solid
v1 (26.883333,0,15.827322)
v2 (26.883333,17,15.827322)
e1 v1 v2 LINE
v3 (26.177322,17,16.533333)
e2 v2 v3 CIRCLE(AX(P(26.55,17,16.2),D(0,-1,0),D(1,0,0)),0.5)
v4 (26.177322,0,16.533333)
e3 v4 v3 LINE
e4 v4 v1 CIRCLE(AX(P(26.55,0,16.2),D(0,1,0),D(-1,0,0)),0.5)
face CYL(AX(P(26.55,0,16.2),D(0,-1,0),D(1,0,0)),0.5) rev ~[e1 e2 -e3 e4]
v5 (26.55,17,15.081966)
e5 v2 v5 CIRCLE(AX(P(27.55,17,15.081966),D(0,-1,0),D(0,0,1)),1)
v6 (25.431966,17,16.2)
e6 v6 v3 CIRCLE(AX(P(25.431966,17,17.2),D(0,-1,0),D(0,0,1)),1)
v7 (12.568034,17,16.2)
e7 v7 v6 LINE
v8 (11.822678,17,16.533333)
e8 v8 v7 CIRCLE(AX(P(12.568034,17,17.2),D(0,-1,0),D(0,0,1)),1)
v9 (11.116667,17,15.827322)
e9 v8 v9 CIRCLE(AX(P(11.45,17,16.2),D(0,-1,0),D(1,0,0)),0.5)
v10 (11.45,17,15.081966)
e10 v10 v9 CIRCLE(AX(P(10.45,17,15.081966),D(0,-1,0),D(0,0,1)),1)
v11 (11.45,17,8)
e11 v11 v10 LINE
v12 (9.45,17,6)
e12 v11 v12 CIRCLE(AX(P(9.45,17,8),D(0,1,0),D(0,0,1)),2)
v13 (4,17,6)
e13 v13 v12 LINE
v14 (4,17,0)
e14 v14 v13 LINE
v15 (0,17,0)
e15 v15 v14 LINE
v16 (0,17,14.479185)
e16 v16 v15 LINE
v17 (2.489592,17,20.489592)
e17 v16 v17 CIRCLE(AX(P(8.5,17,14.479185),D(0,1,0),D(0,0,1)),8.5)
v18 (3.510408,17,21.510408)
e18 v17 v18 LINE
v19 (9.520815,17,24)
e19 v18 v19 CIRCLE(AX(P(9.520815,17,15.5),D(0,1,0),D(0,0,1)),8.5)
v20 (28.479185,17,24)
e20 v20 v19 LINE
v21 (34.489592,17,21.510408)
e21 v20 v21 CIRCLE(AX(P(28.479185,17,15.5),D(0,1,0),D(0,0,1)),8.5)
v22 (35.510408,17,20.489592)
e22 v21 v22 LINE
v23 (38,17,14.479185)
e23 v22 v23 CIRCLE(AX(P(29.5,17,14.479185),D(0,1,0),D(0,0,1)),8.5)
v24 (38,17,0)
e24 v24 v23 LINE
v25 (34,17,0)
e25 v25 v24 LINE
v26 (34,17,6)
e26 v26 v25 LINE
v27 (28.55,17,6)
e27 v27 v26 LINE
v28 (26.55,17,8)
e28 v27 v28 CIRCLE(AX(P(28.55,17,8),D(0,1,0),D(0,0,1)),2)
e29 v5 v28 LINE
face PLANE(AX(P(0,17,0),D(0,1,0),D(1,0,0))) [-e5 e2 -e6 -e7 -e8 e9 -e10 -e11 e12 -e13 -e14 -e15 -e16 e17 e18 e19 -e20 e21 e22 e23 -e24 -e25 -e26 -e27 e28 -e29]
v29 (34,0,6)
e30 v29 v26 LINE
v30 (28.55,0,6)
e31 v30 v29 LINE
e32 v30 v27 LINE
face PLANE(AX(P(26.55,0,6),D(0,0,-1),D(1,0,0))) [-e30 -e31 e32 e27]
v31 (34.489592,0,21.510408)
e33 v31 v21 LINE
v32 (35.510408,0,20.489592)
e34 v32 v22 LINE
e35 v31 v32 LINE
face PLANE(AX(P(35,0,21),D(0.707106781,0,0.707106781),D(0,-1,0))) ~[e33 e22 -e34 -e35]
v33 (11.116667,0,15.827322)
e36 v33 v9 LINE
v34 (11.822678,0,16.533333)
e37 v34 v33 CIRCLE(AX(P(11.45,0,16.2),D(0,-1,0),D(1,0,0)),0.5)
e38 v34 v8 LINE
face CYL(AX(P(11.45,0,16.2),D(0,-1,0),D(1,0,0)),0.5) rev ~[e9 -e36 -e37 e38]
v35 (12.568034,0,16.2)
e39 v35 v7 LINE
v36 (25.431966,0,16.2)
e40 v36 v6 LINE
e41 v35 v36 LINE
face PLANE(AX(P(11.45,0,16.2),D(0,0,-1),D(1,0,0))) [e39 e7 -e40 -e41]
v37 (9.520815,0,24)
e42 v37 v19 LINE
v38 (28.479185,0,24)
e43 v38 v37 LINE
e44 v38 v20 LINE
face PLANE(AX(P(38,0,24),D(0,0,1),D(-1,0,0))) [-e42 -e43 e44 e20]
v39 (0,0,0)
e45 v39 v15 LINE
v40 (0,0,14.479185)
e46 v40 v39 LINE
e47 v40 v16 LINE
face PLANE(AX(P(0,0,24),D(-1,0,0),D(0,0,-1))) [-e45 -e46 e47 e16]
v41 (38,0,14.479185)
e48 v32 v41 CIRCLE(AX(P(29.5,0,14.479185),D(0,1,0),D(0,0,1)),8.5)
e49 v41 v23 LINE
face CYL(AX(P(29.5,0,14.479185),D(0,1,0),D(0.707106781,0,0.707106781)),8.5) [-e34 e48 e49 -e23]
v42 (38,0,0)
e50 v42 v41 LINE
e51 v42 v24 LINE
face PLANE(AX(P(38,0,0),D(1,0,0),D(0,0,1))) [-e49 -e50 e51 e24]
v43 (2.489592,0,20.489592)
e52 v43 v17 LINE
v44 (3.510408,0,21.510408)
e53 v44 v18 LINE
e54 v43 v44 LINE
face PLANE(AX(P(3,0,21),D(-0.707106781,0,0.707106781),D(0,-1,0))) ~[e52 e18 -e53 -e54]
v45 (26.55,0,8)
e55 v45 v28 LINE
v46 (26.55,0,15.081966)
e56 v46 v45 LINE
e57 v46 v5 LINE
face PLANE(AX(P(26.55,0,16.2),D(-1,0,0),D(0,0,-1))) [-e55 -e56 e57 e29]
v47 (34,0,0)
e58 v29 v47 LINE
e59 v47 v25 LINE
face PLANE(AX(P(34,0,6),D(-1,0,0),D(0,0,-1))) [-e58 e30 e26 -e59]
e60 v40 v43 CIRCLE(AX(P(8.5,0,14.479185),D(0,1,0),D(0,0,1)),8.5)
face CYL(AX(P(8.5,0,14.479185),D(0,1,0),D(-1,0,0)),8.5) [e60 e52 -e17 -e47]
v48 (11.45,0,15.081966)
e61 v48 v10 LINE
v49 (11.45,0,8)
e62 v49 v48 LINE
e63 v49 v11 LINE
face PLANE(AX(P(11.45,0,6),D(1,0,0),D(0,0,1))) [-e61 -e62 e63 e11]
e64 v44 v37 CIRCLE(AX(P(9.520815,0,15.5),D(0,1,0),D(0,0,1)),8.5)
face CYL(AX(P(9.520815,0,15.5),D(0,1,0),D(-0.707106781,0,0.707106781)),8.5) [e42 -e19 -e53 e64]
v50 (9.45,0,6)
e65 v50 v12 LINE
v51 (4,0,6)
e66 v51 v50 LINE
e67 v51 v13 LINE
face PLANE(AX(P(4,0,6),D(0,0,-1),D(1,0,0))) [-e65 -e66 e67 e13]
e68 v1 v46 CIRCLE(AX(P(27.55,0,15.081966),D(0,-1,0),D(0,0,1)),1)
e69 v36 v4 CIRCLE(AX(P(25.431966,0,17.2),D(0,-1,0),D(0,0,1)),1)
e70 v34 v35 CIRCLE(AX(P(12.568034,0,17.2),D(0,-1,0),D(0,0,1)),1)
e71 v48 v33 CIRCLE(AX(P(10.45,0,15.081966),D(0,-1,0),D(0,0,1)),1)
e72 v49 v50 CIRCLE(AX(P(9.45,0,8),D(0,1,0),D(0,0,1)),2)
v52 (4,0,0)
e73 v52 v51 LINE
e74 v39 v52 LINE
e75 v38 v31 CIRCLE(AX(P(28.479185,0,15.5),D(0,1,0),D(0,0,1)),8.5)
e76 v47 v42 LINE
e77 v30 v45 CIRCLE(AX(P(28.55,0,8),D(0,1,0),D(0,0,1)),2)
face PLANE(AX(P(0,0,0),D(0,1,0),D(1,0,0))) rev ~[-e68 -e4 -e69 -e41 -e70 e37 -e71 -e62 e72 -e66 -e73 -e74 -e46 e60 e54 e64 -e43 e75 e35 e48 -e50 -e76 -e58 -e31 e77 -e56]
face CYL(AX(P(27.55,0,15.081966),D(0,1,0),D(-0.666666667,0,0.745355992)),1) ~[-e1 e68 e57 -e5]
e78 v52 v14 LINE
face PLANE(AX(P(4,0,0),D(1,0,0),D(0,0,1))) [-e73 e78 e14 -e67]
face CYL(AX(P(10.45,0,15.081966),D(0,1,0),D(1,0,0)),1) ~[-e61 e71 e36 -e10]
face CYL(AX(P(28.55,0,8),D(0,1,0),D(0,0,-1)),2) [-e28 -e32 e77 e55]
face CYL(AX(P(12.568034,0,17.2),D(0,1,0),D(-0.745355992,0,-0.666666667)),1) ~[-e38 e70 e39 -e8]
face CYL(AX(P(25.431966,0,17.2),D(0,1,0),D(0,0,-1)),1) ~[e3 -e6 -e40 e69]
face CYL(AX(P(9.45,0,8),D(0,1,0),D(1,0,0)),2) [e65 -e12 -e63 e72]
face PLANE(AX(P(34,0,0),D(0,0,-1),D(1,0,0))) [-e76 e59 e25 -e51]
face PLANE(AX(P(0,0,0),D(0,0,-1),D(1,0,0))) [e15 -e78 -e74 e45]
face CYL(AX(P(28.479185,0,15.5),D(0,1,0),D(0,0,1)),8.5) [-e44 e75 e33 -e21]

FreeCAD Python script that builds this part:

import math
import FreeCAD as App
import Part
import Sketcher

V = App.Vector
Q = App.Units.Quantity


def edges_at(feature, points):
    """Names of the edges that pass closest to the given points."""
    edges = feature.Shape.Edges
    near = lambda p: min(range(len(edges)), key=lambda i: edges[i].distToShape(Part.Vertex(*p))[0])
    return sorted({f"Edge{near(p) + 1}" for p in points})


def add_polygon(sketch, points):
    """Adds a closed chain of lines whose ends are joined by coincident constraints."""
    first, n = sketch.GeometryCount, len(points)
    for a, b in zip(points, points[1:] + points[:1]):
        sketch.addGeometry(Part.LineSegment(App.Vector(*a, 0), App.Vector(*b, 0)), False)
    for i in range(n):
        sketch.addConstraint(Sketcher.Constraint("Coincident", first + i, 2, first + (i + 1) % n, 1))

doc = App.newDocument("Part")
params = doc.addObject("Spreadsheet::Sheet", "Params")
for row, (alias, value) in enumerate([
    ("sketch1_width", "4 mm"),
    ("sketch1_height", "24 mm"),
    ("sketch1_height2", "6 mm"),
    ("sketch1_width2", "15.1 mm"),
    ("sketch1_height3", "10.2 mm"),
    ("pad1_length", "17 mm"),
    ("chamfer_size", "6 mm"),
    ("chamfer_size2", "6 mm"),
    ("fillet_radius", "2 mm"),
    ("sketch2_radius", "0.5 mm"),
    ("fillet2_radius", "1 mm"),
    ("fillet3_radius", "8.5 mm"),
], start=1):
    params.set(f"A{row}", alias)
    params.set(f"B{row}", "=" + value)
    params.setAlias(f"B{row}", alias)

body = doc.addObject("PartDesign::Body", "Body")

# Sketch on XZ plane
sketch1 = doc.addObject("Sketcher::SketchObject", "Sketch")
body.addObject(sketch1)
sketch1.AttachmentSupport = (doc.XZ_Plane, [""])
sketch1.MapMode = "FlatFace"
add_polygon(sketch1, [(4, 0), (0, 0), (0, 24), (38, 24), (38, 0), (34, 0), (34, 6), (26.6, 6), (26.6, 16.2), (11.4, 16.2), (11.4, 6), (4, 6)])  # lines 0-11
sketch1.addConstraint(Sketcher.Constraint("Horizontal", 0))
sketch1.addConstraint(Sketcher.Constraint("Vertical", 1))
sketch1.addConstraint(Sketcher.Constraint("Horizontal", 2))
sketch1.addConstraint(Sketcher.Constraint("Vertical", 3))
sketch1.addConstraint(Sketcher.Constraint("Horizontal", 4))
sketch1.addConstraint(Sketcher.Constraint("Vertical", 5))
sketch1.addConstraint(Sketcher.Constraint("Horizontal", 6))
sketch1.addConstraint(Sketcher.Constraint("Vertical", 7))
sketch1.addConstraint(Sketcher.Constraint("Horizontal", 8))
sketch1.addConstraint(Sketcher.Constraint("Vertical", 9))
sketch1.addConstraint(Sketcher.Constraint("Horizontal", 10))
sketch1.addConstraint(Sketcher.Constraint("Vertical", 11))
sketch1.addConstraint(Sketcher.Constraint("Coincident", 0, 2, -1, 1))
sketch1.addConstraint(Sketcher.Constraint("PointOnObject", 3, 2, -1))
sketch1.addConstraint(Sketcher.Constraint("Horizontal", 6, 2, 9, 2))
sketch1.addConstraint(Sketcher.Constraint("Equal", 0, 4))
sketch1.addConstraint(Sketcher.Constraint("Equal", 6, 10))
sketch1.addConstraint(Sketcher.Constraint("DistanceX", 0, 2, 0, 1, Q("4 mm")))
sketch1.addConstraint(Sketcher.Constraint("DistanceY", 1, 1, 1, 2, Q("24 mm")))
sketch1.addConstraint(Sketcher.Constraint("DistanceY", 5, 1, 5, 2, Q("6 mm")))
sketch1.addConstraint(Sketcher.Constraint("DistanceX", 8, 2, 8, 1, Q("15.1 mm")))
sketch1.addConstraint(Sketcher.Constraint("DistanceY", 7, 1, 7, 2, Q("10.2 mm")))
sketch1.addConstraint(Sketcher.Constraint("DistanceX", 2, 1, 2, 2, Q("38 mm")))
sketch1.setExpression("Constraints[29]", "Params.sketch1_width")
sketch1.setExpression("Constraints[30]", "Params.sketch1_height")
sketch1.setExpression("Constraints[31]", "Params.sketch1_height2")
sketch1.setExpression("Constraints[32]", "Params.sketch1_width2")
sketch1.setExpression("Constraints[33]", "Params.sketch1_height3")
pad1 = doc.addObject("PartDesign::Pad", "Pad")
body.addObject(pad1)
pad1.Profile = sketch1
pad1.setExpression("Length", "Params.pad1_length")
pad1.Reversed = True
doc.recompute()

chamfer = doc.addObject("PartDesign::Chamfer", "Chamfer")
body.addObject(chamfer)
chamfer.Base = (pad1, edges_at(pad1, [(38, 8.5, 24), (0, 8.5, 24)]))
chamfer.ChamferType = "Two distances"
chamfer.setExpression("Size", "Params.chamfer_size")
chamfer.setExpression("Size2", "Params.chamfer_size2")
doc.recompute()

fillet = doc.addObject("PartDesign::Fillet", "Fillet")
body.addObject(fillet)
fillet.Base = (chamfer, edges_at(chamfer, [(11.45, 8.5, 6), (26.55, 8.5, 6)]))
fillet.setExpression("Radius", "Params.fillet_radius")

# Sketch on XZ plane
sketch2 = doc.addObject("Sketcher::SketchObject", "Sketch001")
body.addObject(sketch2)
sketch2.AttachmentSupport = (doc.XZ_Plane, [""])
sketch2.MapMode = "FlatFace"
sketch2.addGeometry(Part.LineSegment(V(26.6, 16.2, 0), V(26.6, 15.7, 0)), False)
sketch2.addGeometry(Part.ArcOfCircle(Part.Circle(V(26.6, 16.2, 0), V(0, 0, 1), 0.5), math.radians(-90), math.radians(180)), False)
sketch2.addGeometry(Part.LineSegment(V(26.1, 16.2, 0), V(26.6, 16.2, 0)), False)
sketch2.addGeometry(Part.LineSegment(V(11.4, 16.2, 0), V(11.9, 16.2, 0)), False)
sketch2.addGeometry(Part.ArcOfCircle(Part.Circle(V(11.4, 16.2, 0), V(0, 0, 1), 0.5), math.radians(0), math.radians(270)), False)
sketch2.addGeometry(Part.LineSegment(V(11.4, 15.7, 0), V(11.4, 16.2, 0)), False)
sketch2.addConstraint(Sketcher.Constraint("Coincident", 0, 2, 1, 1))
sketch2.addConstraint(Sketcher.Constraint("Coincident", 1, 2, 2, 1))
sketch2.addConstraint(Sketcher.Constraint("Coincident", 2, 2, 0, 1))
sketch2.addConstraint(Sketcher.Constraint("Coincident", 3, 2, 4, 1))
sketch2.addConstraint(Sketcher.Constraint("Coincident", 4, 2, 5, 1))
sketch2.addConstraint(Sketcher.Constraint("Coincident", 5, 2, 3, 1))
sketch2.addConstraint(Sketcher.Constraint("Vertical", 0))
sketch2.addConstraint(Sketcher.Constraint("Horizontal", 2))
sketch2.addConstraint(Sketcher.Constraint("Horizontal", 3))
sketch2.addConstraint(Sketcher.Constraint("Vertical", 5))
sketch2.addConstraint(Sketcher.Constraint("Coincident", 2, 2, 1, 3))
sketch2.addConstraint(Sketcher.Constraint("Coincident", 5, 2, 4, 3))
sketch2.addConstraint(Sketcher.Constraint("Equal", 1, 4))
sketch2.addConstraint(Sketcher.Constraint("Horizontal", 1, 3, 4, 3))
sketch2.addConstraint(Sketcher.Constraint("Radius", 1, Q("0.5 mm")))
sketch2.addConstraint(Sketcher.Constraint("DistanceY", -1, 1, 1, 3, Q("16.2 mm")))
sketch2.addConstraint(Sketcher.Constraint("DistanceX", 4, 3, 1, 3, Q("15.1 mm")))
sketch2.addConstraint(Sketcher.Constraint("DistanceX", -1, 1, 1, 3, Q("26.55 mm")))
sketch2.setExpression("Constraints[14]", "Params.sketch2_radius")
pocket1 = doc.addObject("PartDesign::Pocket", "Pocket")
body.addObject(pocket1)
pocket1.Profile = sketch2
pocket1.Type = "ThroughAll"
doc.recompute()

fillet2 = doc.addObject("PartDesign::Fillet", "Fillet001")
body.addObject(fillet2)
fillet2.Base = (pocket1, edges_at(pocket1, [
    (11.45, 8.5, 15.7),
    (11.95, 8.5, 16.2),
    (26.05, 8.5, 16.2),
    (26.55, 8.5, 15.7),
]))
fillet2.setExpression("Radius", "Params.fillet2_radius")
doc.recompute()

fillet3 = doc.addObject("PartDesign::Fillet", "Fillet002")
body.addObject(fillet3)
fillet3.Base = (fillet2, edges_at(fillet2, [
    (6, 8.5, 24),
    (0, 8.5, 18),
    (32, 8.5, 24),
    (38, 8.5, 18),
]))
fillet3.setExpression("Radius", "Params.fillet3_radius")

doc.recompute()
